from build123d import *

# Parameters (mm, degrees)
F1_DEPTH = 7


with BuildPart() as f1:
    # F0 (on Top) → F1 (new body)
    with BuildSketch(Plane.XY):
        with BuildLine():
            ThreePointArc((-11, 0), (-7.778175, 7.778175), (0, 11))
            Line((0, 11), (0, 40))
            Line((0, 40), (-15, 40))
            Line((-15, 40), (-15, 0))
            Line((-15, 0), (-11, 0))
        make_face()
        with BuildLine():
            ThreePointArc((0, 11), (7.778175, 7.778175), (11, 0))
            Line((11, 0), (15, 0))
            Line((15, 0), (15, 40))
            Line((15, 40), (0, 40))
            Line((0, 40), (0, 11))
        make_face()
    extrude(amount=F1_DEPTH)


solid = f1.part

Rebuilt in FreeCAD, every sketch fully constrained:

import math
import FreeCAD as App
import Part
import Sketcher
from FreeCAD import Vector

doc = App.newDocument("Part")
params = doc.addObject("Spreadsheet::Sheet", "Params")
for row, (alias, value) in enumerate([
    ("sketch1_radius", "10.999999 mm"),
    ("sketch1_width", "4 mm"),
    ("sketch1_height", "40 mm"),
    ("pad1_length", "7 mm"),
], start=1):
    params.set(f"A{row}", alias)
    params.set(f"B{row}", "=" + value)
    params.setAlias(f"B{row}", alias)

body = doc.addObject("PartDesign::Body", "Body")

# Sketch on XY plane
sketch1 = body.newObject("Sketcher::SketchObject", "Sketch")
sketch1.AttachmentSupport = (doc.getObject("XY_Plane"), [""])
sketch1.MapMode = "FlatFace"
sketch1.addGeometry([
    Part.ArcOfCircle(Part.Circle(Vector(0, 0, 0), Vector(0, 0, 1), 11), math.radians(90), math.radians(180)),  # 0
    Part.ArcOfCircle(Part.Circle(Vector(0, 0, 0), Vector(0, 0, 1), 11), math.radians(0), math.radians(90)),  # 1
    Part.LineSegment(Vector(11, 0, 0), Vector(15, 0, 0)),  # 2
    Part.LineSegment(Vector(15, 0, 0), Vector(15, 40, 0)),  # 3
    Part.LineSegment(Vector(15, 40, 0), Vector(-15, 40, 0)),  # 4
    Part.LineSegment(Vector(-15, 40, 0), Vector(-15, 0, 0)),  # 5
    Part.LineSegment(Vector(-15, 0, 0), Vector(-11, 0, 0)),  # 6
], False)
sketch1.addConstraint([
    Sketcher.Constraint("Tangent", 0, 1, 1, 2),
    Sketcher.Constraint("Coincident", 1, 1, 2, 1),
    Sketcher.Constraint("Coincident", 2, 2, 3, 1),
    Sketcher.Constraint("Coincident", 3, 2, 4, 1),
    Sketcher.Constraint("Coincident", 4, 2, 5, 1),
    Sketcher.Constraint("Coincident", 5, 2, 6, 1),
    Sketcher.Constraint("Coincident", 6, 2, 0, 2),
    Sketcher.Constraint("Horizontal", 2),
    Sketcher.Constraint("Vertical", 3),
    Sketcher.Constraint("Horizontal", 4),
    Sketcher.Constraint("Vertical", 5),
    Sketcher.Constraint("Horizontal", 6),
    Sketcher.Constraint("Coincident", 0, 3, -1, 1),
    Sketcher.Constraint("Equal", 0, 1),
    Sketcher.Constraint("Symmetric", 2, 2, 5, 2, -1, 1),
    Sketcher.Constraint("PointOnObject", 0, 1, -2),
    Sketcher.Constraint("PointOnObject", 1, 1, -1),
    Sketcher.Constraint("Radius", 0, 10.999999),
    Sketcher.Constraint("DistanceX", 2, 1, 2, 2, 4.0),
    Sketcher.Constraint("DistanceY", 3, 1, 3, 2, 40.0),
])
sketch1.setExpression("Constraints[17]", "Params.sketch1_radius")
sketch1.setExpression("Constraints[18]", "Params.sketch1_width")
sketch1.setExpression("Constraints[19]", "Params.sketch1_height")
pad1 = body.newObject("PartDesign::Pad", "Pad")
pad1.Profile = sketch1
pad1.setExpression("Length", "Params.pad1_length")

doc.recompute()
